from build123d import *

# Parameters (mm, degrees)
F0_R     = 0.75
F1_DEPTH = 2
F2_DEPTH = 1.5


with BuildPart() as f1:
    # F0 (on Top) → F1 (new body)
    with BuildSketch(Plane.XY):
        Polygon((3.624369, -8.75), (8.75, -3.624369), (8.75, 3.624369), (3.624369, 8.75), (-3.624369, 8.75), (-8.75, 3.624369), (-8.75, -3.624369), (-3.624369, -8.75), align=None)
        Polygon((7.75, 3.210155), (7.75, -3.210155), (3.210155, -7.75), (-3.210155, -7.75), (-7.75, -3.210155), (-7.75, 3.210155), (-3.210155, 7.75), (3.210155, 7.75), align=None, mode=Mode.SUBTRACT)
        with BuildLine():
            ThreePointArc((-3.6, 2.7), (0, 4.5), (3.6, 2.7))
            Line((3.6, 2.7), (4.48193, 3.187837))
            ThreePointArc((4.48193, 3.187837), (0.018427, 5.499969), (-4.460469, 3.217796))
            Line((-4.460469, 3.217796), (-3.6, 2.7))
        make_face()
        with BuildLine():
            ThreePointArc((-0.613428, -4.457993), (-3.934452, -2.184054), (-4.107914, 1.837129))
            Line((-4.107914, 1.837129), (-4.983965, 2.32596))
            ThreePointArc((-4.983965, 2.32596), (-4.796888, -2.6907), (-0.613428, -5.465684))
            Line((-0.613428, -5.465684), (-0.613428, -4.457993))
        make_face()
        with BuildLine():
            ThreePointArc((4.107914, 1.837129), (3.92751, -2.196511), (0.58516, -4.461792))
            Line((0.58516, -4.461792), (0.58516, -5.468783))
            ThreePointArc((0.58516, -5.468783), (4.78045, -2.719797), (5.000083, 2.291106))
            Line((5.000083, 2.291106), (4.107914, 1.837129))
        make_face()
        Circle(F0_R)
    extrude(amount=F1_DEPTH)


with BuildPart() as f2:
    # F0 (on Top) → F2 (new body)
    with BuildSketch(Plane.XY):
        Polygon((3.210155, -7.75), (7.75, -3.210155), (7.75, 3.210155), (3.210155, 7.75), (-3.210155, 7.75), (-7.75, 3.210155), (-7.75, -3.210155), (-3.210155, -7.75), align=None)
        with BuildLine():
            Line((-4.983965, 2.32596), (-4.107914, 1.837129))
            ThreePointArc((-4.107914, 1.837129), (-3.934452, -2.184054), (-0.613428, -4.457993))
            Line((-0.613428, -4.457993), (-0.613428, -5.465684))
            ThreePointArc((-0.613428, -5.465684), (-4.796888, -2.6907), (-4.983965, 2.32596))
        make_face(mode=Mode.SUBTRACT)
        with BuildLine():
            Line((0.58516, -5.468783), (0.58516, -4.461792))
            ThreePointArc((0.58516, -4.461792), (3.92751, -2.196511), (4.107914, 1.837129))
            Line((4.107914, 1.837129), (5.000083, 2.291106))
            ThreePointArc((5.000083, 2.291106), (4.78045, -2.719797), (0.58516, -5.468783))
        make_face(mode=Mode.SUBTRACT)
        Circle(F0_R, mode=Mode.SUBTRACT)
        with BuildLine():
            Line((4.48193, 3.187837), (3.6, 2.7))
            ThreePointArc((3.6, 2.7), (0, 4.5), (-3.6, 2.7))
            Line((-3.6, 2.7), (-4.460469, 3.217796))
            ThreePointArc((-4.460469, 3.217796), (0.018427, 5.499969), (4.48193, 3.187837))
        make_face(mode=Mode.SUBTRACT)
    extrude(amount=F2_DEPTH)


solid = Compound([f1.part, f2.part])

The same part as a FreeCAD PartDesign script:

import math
import FreeCAD as App
import Part
import Sketcher
from FreeCAD import Vector


def add_polygon(sketch, points):
    """Adds a closed chain of lines whose ends are joined by coincident constraints."""
    first, n = sketch.GeometryCount, len(points)
    for a, b in zip(points, points[1:] + points[:1]):
        sketch.addGeometry(Part.LineSegment(App.Vector(*a, 0), App.Vector(*b, 0)), False)
    for i in range(n):
        sketch.addConstraint(Sketcher.Constraint("Coincident", first + i, 2, first + (i + 1) % n, 1))

doc = App.newDocument("Part")
body = doc.addObject("PartDesign::Body", "Body")
body.AllowCompound = True

sketch1 = doc.addObject("Sketcher::SketchObject", "Sketch")
body.addObject(sketch1)
sketch1.AttachmentSupport = (doc.XY_Plane, [""])
sketch1.MapMode = "FlatFace"
add_polygon(sketch1, [(3.6, -8.8), (8.8, -3.6), (8.8, 3.6), (3.6, 8.8), (-3.6, 8.8), (-8.8, 3.6), (-8.8, -3.6), (-3.6, -8.8)])
add_polygon(sketch1, [(3.2, 7.8), (7.8, 3.2), (7.8, -3.2), (3.2, -7.8), (-3.2, -7.8), (-7.8, -3.2), (-7.8, 3.2), (-3.2, 7.8)])
sketch1.addGeometry(Part.ArcOfCircle(Part.Circle(Vector(0, 0, 0), Vector(0, 0, 1), 4.5), math.radians(37), math.radians(143)), False)
sketch1.addGeometry(Part.LineSegment(Vector(3.6, 2.7, 0), Vector(4.5, 3.2, 0)), False)
sketch1.addGeometry(Part.ArcOfCircle(Part.Circle(Vector(0, 0, 0), Vector(0, 0, 1), 5.5), math.radians(35), math.radians(144)), False)
sketch1.addGeometry(Part.LineSegment(Vector(-4.5, 3.2, 0), Vector(-3.6, 2.7, 0)), False)
sketch1.addGeometry(Part.ArcOfCircle(Part.Circle(Vector(0, 0, 0), Vector(0, 0, 1), 4.5), math.radians(156), math.radians(262)), False)
sketch1.addGeometry(Part.LineSegment(Vector(-4.1, 1.8, 0), Vector(-5, 2.3, 0)), False)
sketch1.addGeometry(Part.ArcOfCircle(Part.Circle(Vector(0, 0, 0), Vector(0, 0, 1), 5.5), math.radians(155), math.radians(264)), False)
sketch1.addGeometry(Part.LineSegment(Vector(-0.6, -5.5, 0), Vector(-0.6, -4.5, 0)), False)
sketch1.addGeometry(Part.ArcOfCircle(Part.Circle(Vector(0, 0, 0), Vector(0, 0, 1), 4.5), math.radians(-83), math.radians(24)), False)
sketch1.addGeometry(Part.LineSegment(Vector(0.6, -4.5, 0), Vector(0.6, -5.5, 0)), False)
sketch1.addGeometry(Part.ArcOfCircle(Part.Circle(Vector(0, 0, 0), Vector(0, 0, 1), 5.5), math.radians(-84), math.radians(25)), False)
sketch1.addGeometry(Part.LineSegment(Vector(5, 2.3, 0), Vector(4.1, 1.8, 0)), False)
sketch1.addGeometry(Part.Circle(Vector(0, 0, 0), Vector(0, 0, 1), 0.8), False)
sketch1.addConstraint([
    Sketcher.Constraint("Coincident", 16, 1, 17, 1),
    Sketcher.Constraint("Coincident", 17, 2, 18, 1),
    Sketcher.Constraint("Coincident", 18, 2, 19, 1),
    Sketcher.Constraint("Coincident", 19, 2, 16, 2),
    Sketcher.Constraint("Coincident", 20, 1, 21, 1),
    Sketcher.Constraint("Coincident", 21, 2, 22, 1),
    Sketcher.Constraint("Coincident", 22, 2, 23, 1),
    Sketcher.Constraint("Coincident", 23, 2, 20, 2),
    Sketcher.Constraint("Coincident", 24, 1, 25, 1),
    Sketcher.Constraint("Coincident", 25, 2, 26, 1),
    Sketcher.Constraint("Coincident", 26, 2, 27, 1),
    Sketcher.Constraint("Coincident", 27, 2, 24, 2),
    Sketcher.Constraint("Vertical", 1),
    Sketcher.Constraint("Horizontal", 3),
    Sketcher.Constraint("Vertical", 5),
    Sketcher.Constraint("Horizontal", 7),
    Sketcher.Constraint("Vertical", 9),
    Sketcher.Constraint("Horizontal", 11),
    Sketcher.Constraint("Vertical", 13),
    Sketcher.Constraint("Horizontal", 15),
    Sketcher.Constraint("Vertical", 23),
    Sketcher.Constraint("Vertical", 25),
    Sketcher.Constraint("Coincident", 16, 3, -1, 1),
    Sketcher.Constraint("Coincident", 18, 3, -1, 1),
    Sketcher.Constraint("Coincident", 20, 3, -1, 1),
    Sketcher.Constraint("Coincident", 22, 3, -1, 1),
    Sketcher.Constraint("Coincident", 24, 3, -1, 1),
    Sketcher.Constraint("Coincident", 26, 3, -1, 1),
    Sketcher.Constraint("Coincident", 28, 3, -1, 1),
    Sketcher.Constraint("Equal", 16, 20),
    Sketcher.Constraint("Equal", 18, 22),
    Sketcher.Constraint("Equal", 16, 24),
    Sketcher.Constraint("Equal", 22, 26),
    Sketcher.Constraint("Symmetric", 0, 2, 4, 2, -1, 1),
    Sketcher.Constraint("Symmetric", 2, 2, 6, 2, -1, 1),
    Sketcher.Constraint("Symmetric", 8, 2, 12, 2, -1, 1),
    Sketcher.Constraint("Symmetric", 10, 2, 14, 2, -1, 1),
    Sketcher.Constraint("Perpendicular", 0, 2),
    Sketcher.Constraint("Perpendicular", 2, 4),
    Sketcher.Constraint("Perpendicular", 4, 6),
    Sketcher.Constraint("Parallel", 6, 8),
    Sketcher.Constraint("Perpendicular", 8, 10),
    Sketcher.Constraint("Perpendicular", 10, 12),
    Sketcher.Constraint("Perpendicular", 12, 14),
    Sketcher.Constraint("Horizontal", 1, 2, 4, 2),
    Sketcher.Constraint("Horizontal", 9, 2, 12, 2),
    Sketcher.Constraint("Horizontal", 16, 1, 19, 2),
    Sketcher.Constraint("Horizontal", 20, 1, 27, 2),
    Sketcher.Constraint("Vertical", 3, 2, 6, 2),
    Sketcher.Constraint("Equal", 7, 1),
    Sketcher.Constraint("Equal", 15, 9),
    Sketcher.Constraint("Diameter", 28, 1.5),
    Sketcher.Constraint("Radius", 16, 4.5),
    Sketcher.Constraint("Radius", 18, 5.5),
    Sketcher.Constraint("DistanceX", 8, 2, 1, 2, 1.0),
    Sketcher.Constraint("DistanceX", -1, 1, 16, 1, 3.6),
    Sketcher.Constraint("DistanceX", -1, 1, 0, 2, 8.75),
    Sketcher.Constraint("DistanceX", 3, 2, 3, 1, 7.248738),
    Sketcher.Constraint("DistanceX", 11, 2, 11, 1, 6.42031),
    Sketcher.Constraint("DistanceY", 23, 1, 23, 2, 1.007691),
    Sketcher.Constraint("DistanceY", 25, 2, 25, 1, 1.006991),
    Sketcher.Constraint("Distance", 17, 1.007862),
    Sketcher.Constraint("Distance", 19, 1.004251),
    Sketcher.Constraint("Distance", 27, 1.00103),
    Sketcher.Constraint("DistanceY", -1, 1, 20, 1, 1.837129),
    Sketcher.Constraint("DistanceY", -1, 1, 21, 2, 2.32596),
])
pad1 = doc.addObject("PartDesign::Pad", "Pad")
body.addObject(pad1)
pad1.Profile = sketch1
pad1.Length = 2
body2 = doc.addObject("PartDesign::Body", "Body001")

sketch2 = doc.addObject("Sketcher::SketchObject", "Sketch001")
body2.addObject(sketch2)
sketch2.AttachmentSupport = (doc.getObject("XY_Plane001"), [""])
sketch2.MapMode = "FlatFace"
add_polygon(sketch2, [(3.2, -7.8), (7.8, -3.2), (7.8, 3.2), (3.2, 7.8), (-3.2, 7.8), (-7.8, 3.2), (-7.8, -3.2), (-3.2, -7.8)])
sketch2.addGeometry(Part.ArcOfCircle(Part.Circle(Vector(0, 0, 0), Vector(0, 0, 1), 5.5), math.radians(155), math.radians(264)), False)
sketch2.addGeometry(Part.LineSegment(Vector(-5, 2.3, 0), Vector(-4.1, 1.8, 0)), False)
sketch2.addGeometry(Part.ArcOfCircle(Part.Circle(Vector(0, 0, 0), Vector(0, 0, 1), 4.5), math.radians(156), math.radians(262)), False)
sketch2.addGeometry(Part.LineSegment(Vector(-0.6, -4.5, 0), Vector(-0.6, -5.5, 0)), False)
sketch2.addGeometry(Part.Circle(Vector(0, 0, 0), Vector(0, 0, 1), 0.8), False)
sketch2.addGeometry(Part.ArcOfCircle(Part.Circle(Vector(0, 0, 0), Vector(0, 0, 1), 5.5), math.radians(-84), math.radians(25)), False)
sketch2.addGeometry(Part.LineSegment(Vector(0.6, -5.5, 0), Vector(0.6, -4.5, 0)), False)
sketch2.addGeometry(Part.ArcOfCircle(Part.Circle(Vector(0, 0, 0), Vector(0, 0, 1), 4.5), math.radians(-83), math.radians(24)), False)
sketch2.addGeometry(Part.LineSegment(Vector(4.1, 1.8, 0), Vector(5, 2.3, 0)), False)
sketch2.addGeometry(Part.ArcOfCircle(Part.Circle(Vector(0, 0, 0), Vector(0, 0, 1), 5.5), math.radians(35), math.radians(144)), False)
sketch2.addGeometry(Part.LineSegment(Vector(4.5, 3.2, 0), Vector(3.6, 2.7, 0)), False)
sketch2.addGeometry(Part.ArcOfCircle(Part.Circle(Vector(0, 0, 0), Vector(0, 0, 1), 4.5), math.radians(37), math.radians(143)), False)
sketch2.addGeometry(Part.LineSegment(Vector(-3.6, 2.7, 0), Vector(-4.5, 3.2, 0)), False)
sketch2.addConstraint([
    Sketcher.Constraint("Coincident", 8, 1, 9, 1),
    Sketcher.Constraint("Coincident", 9, 2, 10, 1),
    Sketcher.Constraint("Coincident", 10, 2, 11, 1),
    Sketcher.Constraint("Coincident", 11, 2, 8, 2),
    Sketcher.Constraint("Coincident", 13, 1, 14, 1),
    Sketcher.Constraint("Coincident", 14, 2, 15, 1),
    Sketcher.Constraint("Coincident", 15, 2, 16, 1),
    Sketcher.Constraint("Coincident", 16, 2, 13, 2),
    Sketcher.Constraint("Coincident", 17, 1, 18, 1),
    Sketcher.Constraint("Coincident", 18, 2, 19, 1),
    Sketcher.Constraint("Coincident", 19, 2, 20, 1),
    Sketcher.Constraint("Coincident", 20, 2, 17, 2),
    Sketcher.Constraint("Vertical", 1),
    Sketcher.Constraint("Horizontal", 3),
    Sketcher.Constraint("Vertical", 5),
    Sketcher.Constraint("Horizontal", 7),
    Sketcher.Constraint("Vertical", 11),
    Sketcher.Constraint("Vertical", 14),
    Sketcher.Constraint("Coincident", 8, 3, -1, 1),
    Sketcher.Constraint("Coincident", 10, 3, -1, 1),
    Sketcher.Constraint("Coincident", 12, 3, -1, 1),
    Sketcher.Constraint("Coincident", 13, 3, -1, 1),
    Sketcher.Constraint("Coincident", 15, 3, -1, 1),
    Sketcher.Constraint("Coincident", 17, 3, -1, 1),
    Sketcher.Constraint("Coincident", 19, 3, -1, 1),
    Sketcher.Constraint("Equal", 8, 13),
    Sketcher.Constraint("Equal", 13, 17),
    Sketcher.Constraint("Equal", 15, 19),
    Sketcher.Constraint("Symmetric", 0, 2, 4, 2, -1, 1),
    Sketcher.Constraint("Symmetric", 2, 2, 6, 2, -1, 1),
    Sketcher.Constraint("Symmetric", 9, 2, 15, 2, -2),
    Sketcher.Constraint("Perpendicular", 0, 2),
    Sketcher.Constraint("Perpendicular", 2, 4),
    Sketcher.Constraint("Perpendicular", 4, 6),
    Sketcher.Constraint("Horizontal", 1, 2, 4, 2),
    Sketcher.Constraint("Horizontal", 18, 2, 19, 2),
    Sketcher.Constraint("Vertical", 3, 2, 6, 2),
    Sketcher.Constraint("Equal", 7, 1),
    Sketcher.Constraint("Diameter", 12, 1.5),
    Sketcher.Constraint("Radius", 8, 5.499999),
    Sketcher.Constraint("Radius", 10, 4.499999),
    Sketcher.Constraint("DistanceX", -1, 1, 18, 2, 3.6),
    Sketcher.Constraint("DistanceX", -1, 1, 0, 2, 7.75),
    Sketcher.Constraint("DistanceX", 3, 2, 3, 1, 6.42031),
    Sketcher.Constraint("DistanceY", 11, 2, 11, 1, 1.007691),
    Sketcher.Constraint("DistanceY", 14, 1, 14, 2, 1.006991),
    Sketcher.Constraint("Distance", 16, 1.00103),
    Sketcher.Constraint("Distance", 18, 1.007862),
    Sketcher.Constraint("Distance", 20, 1.004251),
    Sketcher.Constraint("DistanceY", -1, 1, 8, 1, 2.32596),
    Sketcher.Constraint("DistanceY", -1, 1, 9, 2, 1.837129),
])
pad2 = doc.addObject("PartDesign::Pad", "Pad001")
body2.addObject(pad2)
pad2.Profile = sketch2
pad2.Length = 1.5

doc.recompute()
